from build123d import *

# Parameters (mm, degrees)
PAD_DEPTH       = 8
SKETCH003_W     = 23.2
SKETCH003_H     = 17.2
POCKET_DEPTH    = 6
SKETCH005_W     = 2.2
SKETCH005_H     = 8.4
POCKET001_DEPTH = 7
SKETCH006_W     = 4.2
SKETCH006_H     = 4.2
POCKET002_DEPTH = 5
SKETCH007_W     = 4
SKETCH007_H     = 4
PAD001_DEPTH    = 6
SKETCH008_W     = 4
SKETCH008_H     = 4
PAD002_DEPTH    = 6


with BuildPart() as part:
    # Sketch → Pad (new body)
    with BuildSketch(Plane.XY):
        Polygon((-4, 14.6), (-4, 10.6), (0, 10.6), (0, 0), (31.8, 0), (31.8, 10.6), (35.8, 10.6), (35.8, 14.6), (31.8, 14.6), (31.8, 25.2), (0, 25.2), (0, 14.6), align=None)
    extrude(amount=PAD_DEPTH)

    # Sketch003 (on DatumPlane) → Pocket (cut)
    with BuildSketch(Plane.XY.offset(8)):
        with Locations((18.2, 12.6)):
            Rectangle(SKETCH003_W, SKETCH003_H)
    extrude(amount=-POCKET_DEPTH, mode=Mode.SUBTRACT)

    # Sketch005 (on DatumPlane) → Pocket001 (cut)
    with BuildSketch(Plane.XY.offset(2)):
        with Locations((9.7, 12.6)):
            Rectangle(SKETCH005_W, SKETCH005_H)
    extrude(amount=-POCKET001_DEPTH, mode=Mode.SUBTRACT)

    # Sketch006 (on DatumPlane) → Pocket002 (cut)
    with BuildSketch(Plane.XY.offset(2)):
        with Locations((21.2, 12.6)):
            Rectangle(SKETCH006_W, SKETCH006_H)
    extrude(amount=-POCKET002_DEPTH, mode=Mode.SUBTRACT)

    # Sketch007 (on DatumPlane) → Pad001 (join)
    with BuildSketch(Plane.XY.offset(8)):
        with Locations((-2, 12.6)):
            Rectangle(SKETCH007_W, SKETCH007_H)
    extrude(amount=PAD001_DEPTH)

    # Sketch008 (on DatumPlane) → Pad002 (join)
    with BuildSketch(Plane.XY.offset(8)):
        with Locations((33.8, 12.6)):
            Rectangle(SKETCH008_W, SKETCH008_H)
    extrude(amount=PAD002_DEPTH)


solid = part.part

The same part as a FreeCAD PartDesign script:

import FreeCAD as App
import Part
import Sketcher

V = App.Vector
Q = App.Units.Quantity

doc = App.newDocument("Part")
params = doc.addObject("Spreadsheet::Sheet", "Params")
for row, (alias, value) in enumerate([
    ("sketch1_width", "4 mm"),
    ("sketch1_width2", "31.8 mm"),
    ("sketch1_height", "10.6 mm"),
    ("pad1_length", "8 mm"),
    ("sketch2_width", "23.2 mm"),
    ("sketch2_height", "17.2 mm"),
    ("pocket1_length", "6 mm"),
    ("sketch3_width", "2.2 mm"),
    ("sketch3_height", "8.4 mm"),
    ("pocket2_length", "7 mm"),
    ("sketch4_width", "4.2 mm"),
    ("pocket3_length", "5 mm"),
    ("sketch5_width", "4 mm"),
    ("pad2_length", "6 mm"),
    ("sketch6_width", "4 mm"),
    ("pad3_length", "6 mm"),
], start=1):
    params.set(f"A{row}", alias)
    params.set(f"B{row}", "=" + value)
    params.setAlias(f"B{row}", alias)

body = doc.addObject("PartDesign::Body", "Body")

# Sketch on XY plane
sketch1 = doc.addObject("Sketcher::SketchObject", "Sketch")
body.addObject(sketch1)
sketch1.AttachmentSupport = (doc.XY_Plane, [""])
sketch1.MapMode = "FlatFace"
sketch1.addGeometry([
    Part.LineSegment(V(-4, 14.6, 0), V(-4, 10.6, 0)),  # 0
    Part.LineSegment(V(-4, 10.6, 0), V(0, 10.6, 0)),  # 1
    Part.LineSegment(V(0, 10.6, 0), V(0, 0, 0)),  # 2
    Part.LineSegment(V(0, 0, 0), V(31.8, 0, 0)),  # 3
    Part.LineSegment(V(31.8, 0, 0), V(31.8, 10.6, 0)),  # 4
    Part.LineSegment(V(31.8, 10.6, 0), V(35.8, 10.6, 0)),  # 5
    Part.LineSegment(V(35.8, 10.6, 0), V(35.8, 14.6, 0)),  # 6
    Part.LineSegment(V(35.8, 14.6, 0), V(31.8, 14.6, 0)),  # 7
    Part.LineSegment(V(31.8, 14.6, 0), V(31.8, 25.2, 0)),  # 8
    Part.LineSegment(V(31.8, 25.2, 0), V(0, 25.2, 0)),  # 9
    Part.LineSegment(V(0, 25.2, 0), V(0, 14.6, 0)),  # 10
    Part.LineSegment(V(0, 14.6, 0), V(-4, 14.6, 0)),  # 11
], False)
sketch1.addConstraint([
    Sketcher.Constraint("Coincident", 0, 2, 1, 1),
    Sketcher.Constraint("Coincident", 1, 2, 2, 1),
    Sketcher.Constraint("Coincident", 2, 2, 3, 1),
    Sketcher.Constraint("Coincident", 3, 2, 4, 1),
    Sketcher.Constraint("Coincident", 4, 2, 5, 1),
    Sketcher.Constraint("Coincident", 5, 2, 6, 1),
    Sketcher.Constraint("Coincident", 6, 2, 7, 1),
    Sketcher.Constraint("Coincident", 7, 2, 8, 1),
    Sketcher.Constraint("Coincident", 8, 2, 9, 1),
    Sketcher.Constraint("Coincident", 9, 2, 10, 1),
    Sketcher.Constraint("Coincident", 10, 2, 11, 1),
    Sketcher.Constraint("Coincident", 11, 2, 0, 1),
    Sketcher.Constraint("Vertical", 0),
    Sketcher.Constraint("Horizontal", 1),
    Sketcher.Constraint("Vertical", 2),
    Sketcher.Constraint("Horizontal", 3),
    Sketcher.Constraint("Vertical", 4),
    Sketcher.Constraint("Horizontal", 5),
    Sketcher.Constraint("Vertical", 6),
    Sketcher.Constraint("Horizontal", 7),
    Sketcher.Constraint("Vertical", 8),
    Sketcher.Constraint("Horizontal", 9),
    Sketcher.Constraint("Vertical", 10),
    Sketcher.Constraint("Horizontal", 11),
    Sketcher.Constraint("Coincident", 2, 2, -1, 1),
    Sketcher.Constraint("PointOnObject", 9, 2, -2),
    Sketcher.Constraint("Horizontal", 1, 2, 4, 2),
    Sketcher.Constraint("Horizontal", 7, 2, 10, 2),
    Sketcher.Constraint("Vertical", 4, 2, 7, 2),
    Sketcher.Constraint("Equal", 1, 5),
    Sketcher.Constraint("Equal", 11, 0),
    Sketcher.Constraint("Equal", 4, 8),
    Sketcher.Constraint("DistanceX", 1, 1, 1, 2, Q("4 mm")),
    Sketcher.Constraint("DistanceX", 3, 1, 3, 2, Q("31.8 mm")),
    Sketcher.Constraint("DistanceY", 2, 2, 2, 1, Q("10.6 mm")),
])
sketch1.setExpression("Constraints[32]", "Params.sketch1_width")
sketch1.setExpression("Constraints[33]", "Params.sketch1_width2")
sketch1.setExpression("Constraints[34]", "Params.sketch1_height")
pad1 = doc.addObject("PartDesign::Pad", "Pad")
body.addObject(pad1)
pad1.Profile = sketch1
pad1.setExpression("Length", "Params.pad1_length")

# Sketch on XY plane
sketch2 = doc.addObject("Sketcher::SketchObject", "Sketch001")
body.addObject(sketch2)
sketch2.AttachmentSupport = (doc.XY_Plane, [""])
sketch2.MapMode = "FlatFace"
sketch2.AttachmentOffset = App.Placement(V(0, 0, 8), App.Rotation())
sketch2.addGeometry([
    Part.LineSegment(V(7, 21, 0), V(7, 4, 0)),
    Part.LineSegment(V(7, 4, 0), V(30, 4, 0)),
    Part.LineSegment(V(30, 4, 0), V(30, 21, 0)),
    Part.LineSegment(V(30, 21, 0), V(7, 21, 0)),
], False)
sketch2.addConstraint([
    Sketcher.Constraint("Coincident", 0, 2, 1, 1),
    Sketcher.Constraint("Coincident", 1, 2, 2, 1),
    Sketcher.Constraint("Coincident", 2, 2, 3, 1),
    Sketcher.Constraint("Coincident", 3, 2, 0, 1),
    Sketcher.Constraint("Vertical", 0),
    Sketcher.Constraint("Horizontal", 1),
    Sketcher.Constraint("Vertical", 2),
    Sketcher.Constraint("Horizontal", 3),
    Sketcher.Constraint("DistanceX", 1, 1, 1, 2, Q("23.2 mm")),
    Sketcher.Constraint("DistanceY", 0, 2, 0, 1, Q("17.2 mm")),
    Sketcher.Constraint("DistanceY", -1, 1, 0, 2, Q("4 mm")),
    Sketcher.Constraint("DistanceX", -1, 1, 0, 2, Q("6.6 mm")),
])
sketch2.setExpression("Constraints[8]", "Params.sketch2_width")
sketch2.setExpression("Constraints[9]", "Params.sketch2_height")
pocket1 = doc.addObject("PartDesign::Pocket", "Pocket")
body.addObject(pocket1)
pocket1.Profile = sketch2
pocket1.setExpression("Length", "Params.pocket1_length")

# Sketch on XY plane
sketch3 = doc.addObject("Sketcher::SketchObject", "Sketch002")
body.addObject(sketch3)
sketch3.AttachmentSupport = (doc.XY_Plane, [""])
sketch3.MapMode = "FlatFace"
sketch3.AttachmentOffset = App.Placement(V(0, 0, 2), App.Rotation())
sketch3.addGeometry([
    Part.LineSegment(V(8.6, 16.8, 0), V(8.6, 8.4, 0)),
    Part.LineSegment(V(8.6, 8.4, 0), V(10.8, 8.4, 0)),
    Part.LineSegment(V(10.8, 8.4, 0), V(10.8, 16.8, 0)),
    Part.LineSegment(V(10.8, 16.8, 0), V(8.6, 16.8, 0)),
], False)
sketch3.addConstraint([
    Sketcher.Constraint("Coincident", 0, 2, 1, 1),
    Sketcher.Constraint("Coincident", 1, 2, 2, 1),
    Sketcher.Constraint("Coincident", 2, 2, 3, 1),
    Sketcher.Constraint("Coincident", 3, 2, 0, 1),
    Sketcher.Constraint("Vertical", 0),
    Sketcher.Constraint("Horizontal", 1),
    Sketcher.Constraint("Vertical", 2),
    Sketcher.Constraint("Horizontal", 3),
    Sketcher.Constraint("DistanceX", 1, 1, 1, 2, Q("2.2 mm")),
    Sketcher.Constraint("DistanceY", 0, 2, 0, 1, Q("8.4 mm")),
    Sketcher.Constraint("DistanceX", -1, 1, 0, 2, Q("8.6 mm")),
    Sketcher.Constraint("DistanceY", -1, 1, 0, 2, Q("8.4 mm")),
])
sketch3.setExpression("Constraints[8]", "Params.sketch3_width")
sketch3.setExpression("Constraints[9]", "Params.sketch3_height")
pocket2 = doc.addObject("PartDesign::Pocket", "Pocket001")
body.addObject(pocket2)
pocket2.Profile = sketch3
pocket2.setExpression("Length", "Params.pocket2_length")

# Sketch on XY plane
sketch4 = doc.addObject("Sketcher::SketchObject", "Sketch003")
body.addObject(sketch4)
sketch4.AttachmentSupport = (doc.XY_Plane, [""])
sketch4.MapMode = "FlatFace"
sketch4.AttachmentOffset = App.Placement(V(0, 0, 2), App.Rotation())
sketch4.addGeometry([
    Part.LineSegment(V(19.1, 14.7, 0), V(19.1, 10.5, 0)),
    Part.LineSegment(V(19.1, 10.5, 0), V(23.3, 10.5, 0)),
    Part.LineSegment(V(23.3, 10.5, 0), V(23.3, 14.7, 0)),
    Part.LineSegment(V(23.3, 14.7, 0), V(19.1, 14.7, 0)),
], False)
sketch4.addConstraint([
    Sketcher.Constraint("Coincident", 0, 2, 1, 1),
    Sketcher.Constraint("Coincident", 1, 2, 2, 1),
    Sketcher.Constraint("Coincident", 2, 2, 3, 1),
    Sketcher.Constraint("Coincident", 3, 2, 0, 1),
    Sketcher.Constraint("Vertical", 0),
    Sketcher.Constraint("Horizontal", 1),
    Sketcher.Constraint("Vertical", 2),
    Sketcher.Constraint("Horizontal", 3),
    Sketcher.Constraint("Equal", 3, 0),
    Sketcher.Constraint("DistanceX", 1, 1, 1, 2, Q("4.2 mm")),
    Sketcher.Constraint("DistanceX", -1, 1, 0, 2, Q("19.1 mm")),
    Sketcher.Constraint("DistanceY", -1, 1, 0, 2, Q("10.5 mm")),
])
sketch4.setExpression("Constraints[9]", "Params.sketch4_width")
pocket3 = doc.addObject("PartDesign::Pocket", "Pocket002")
body.addObject(pocket3)
pocket3.Profile = sketch4
pocket3.setExpression("Length", "Params.pocket3_length")

# Sketch on XY plane
sketch5 = doc.addObject("Sketcher::SketchObject", "Sketch004")
body.addObject(sketch5)
sketch5.AttachmentSupport = (doc.XY_Plane, [""])
sketch5.MapMode = "FlatFace"
sketch5.AttachmentOffset = App.Placement(V(0, 0, 8), App.Rotation())
sketch5.addGeometry([
    Part.LineSegment(V(-4, 14.6, 0), V(-4, 10.6, 0)),
    Part.LineSegment(V(-4, 10.6, 0), V(0, 10.6, 0)),
    Part.LineSegment(V(0, 10.6, 0), V(0, 14.6, 0)),
    Part.LineSegment(V(0, 14.6, 0), V(-4, 14.6, 0)),
], False)
sketch5.addConstraint([
    Sketcher.Constraint("Coincident", 0, 2, 1, 1),
    Sketcher.Constraint("Coincident", 1, 2, 2, 1),
    Sketcher.Constraint("Coincident", 2, 2, 3, 1),
    Sketcher.Constraint("Coincident", 3, 2, 0, 1),
    Sketcher.Constraint("Vertical", 0),
    Sketcher.Constraint("Horizontal", 1),
    Sketcher.Constraint("Vertical", 2),
    Sketcher.Constraint("Horizontal", 3),
    Sketcher.Constraint("PointOnObject", 1, 2, -2),
    Sketcher.Constraint("Equal", 3, 0),
    Sketcher.Constraint("DistanceX", 1, 1, 1, 2, Q("4 mm")),
    Sketcher.Constraint("DistanceY", -1, 1, 0, 2, Q("10.6 mm")),
])
sketch5.setExpression("Constraints[10]", "Params.sketch5_width")
pad2 = doc.addObject("PartDesign::Pad", "Pad001")
body.addObject(pad2)
pad2.Profile = sketch5
pad2.setExpression("Length", "Params.pad2_length")

# Sketch on XY plane
sketch6 = doc.addObject("Sketcher::SketchObject", "Sketch005")
body.addObject(sketch6)
sketch6.AttachmentSupport = (doc.XY_Plane, [""])
sketch6.MapMode = "FlatFace"
sketch6.AttachmentOffset = App.Placement(V(0, 0, 8), App.Rotation())
sketch6.addGeometry([
    Part.LineSegment(V(31.8, 14.6, 0), V(31.8, 10.6, 0)),
    Part.LineSegment(V(31.8, 10.6, 0), V(35.8, 10.6, 0)),
    Part.LineSegment(V(35.8, 10.6, 0), V(35.8, 14.6, 0)),
    Part.LineSegment(V(35.8, 14.6, 0), V(31.8, 14.6, 0)),
], False)
sketch6.addConstraint([
    Sketcher.Constraint("Coincident", 0, 2, 1, 1),
    Sketcher.Constraint("Coincident", 1, 2, 2, 1),
    Sketcher.Constraint("Coincident", 2, 2, 3, 1),
    Sketcher.Constraint("Coincident", 3, 2, 0, 1),
    Sketcher.Constraint("Vertical", 0),
    Sketcher.Constraint("Horizontal", 1),
    Sketcher.Constraint("Vertical", 2),
    Sketcher.Constraint("Horizontal", 3),
    Sketcher.Constraint("Equal", 3, 0),
    Sketcher.Constraint("DistanceX", 1, 1, 1, 2, Q("4 mm")),
    Sketcher.Constraint("DistanceX", -1, 1, 0, 2, Q("31.8 mm")),
    Sketcher.Constraint("DistanceY", -1, 1, 0, 2, Q("10.6 mm")),
])
sketch6.setExpression("Constraints[9]", "Params.sketch6_width")
pad3 = doc.addObject("PartDesign::Pad", "Pad002")
body.addObject(pad3)
pad3.Profile = sketch6
pad3.setExpression("Length", "Params.pad3_length")

doc.recompute()
